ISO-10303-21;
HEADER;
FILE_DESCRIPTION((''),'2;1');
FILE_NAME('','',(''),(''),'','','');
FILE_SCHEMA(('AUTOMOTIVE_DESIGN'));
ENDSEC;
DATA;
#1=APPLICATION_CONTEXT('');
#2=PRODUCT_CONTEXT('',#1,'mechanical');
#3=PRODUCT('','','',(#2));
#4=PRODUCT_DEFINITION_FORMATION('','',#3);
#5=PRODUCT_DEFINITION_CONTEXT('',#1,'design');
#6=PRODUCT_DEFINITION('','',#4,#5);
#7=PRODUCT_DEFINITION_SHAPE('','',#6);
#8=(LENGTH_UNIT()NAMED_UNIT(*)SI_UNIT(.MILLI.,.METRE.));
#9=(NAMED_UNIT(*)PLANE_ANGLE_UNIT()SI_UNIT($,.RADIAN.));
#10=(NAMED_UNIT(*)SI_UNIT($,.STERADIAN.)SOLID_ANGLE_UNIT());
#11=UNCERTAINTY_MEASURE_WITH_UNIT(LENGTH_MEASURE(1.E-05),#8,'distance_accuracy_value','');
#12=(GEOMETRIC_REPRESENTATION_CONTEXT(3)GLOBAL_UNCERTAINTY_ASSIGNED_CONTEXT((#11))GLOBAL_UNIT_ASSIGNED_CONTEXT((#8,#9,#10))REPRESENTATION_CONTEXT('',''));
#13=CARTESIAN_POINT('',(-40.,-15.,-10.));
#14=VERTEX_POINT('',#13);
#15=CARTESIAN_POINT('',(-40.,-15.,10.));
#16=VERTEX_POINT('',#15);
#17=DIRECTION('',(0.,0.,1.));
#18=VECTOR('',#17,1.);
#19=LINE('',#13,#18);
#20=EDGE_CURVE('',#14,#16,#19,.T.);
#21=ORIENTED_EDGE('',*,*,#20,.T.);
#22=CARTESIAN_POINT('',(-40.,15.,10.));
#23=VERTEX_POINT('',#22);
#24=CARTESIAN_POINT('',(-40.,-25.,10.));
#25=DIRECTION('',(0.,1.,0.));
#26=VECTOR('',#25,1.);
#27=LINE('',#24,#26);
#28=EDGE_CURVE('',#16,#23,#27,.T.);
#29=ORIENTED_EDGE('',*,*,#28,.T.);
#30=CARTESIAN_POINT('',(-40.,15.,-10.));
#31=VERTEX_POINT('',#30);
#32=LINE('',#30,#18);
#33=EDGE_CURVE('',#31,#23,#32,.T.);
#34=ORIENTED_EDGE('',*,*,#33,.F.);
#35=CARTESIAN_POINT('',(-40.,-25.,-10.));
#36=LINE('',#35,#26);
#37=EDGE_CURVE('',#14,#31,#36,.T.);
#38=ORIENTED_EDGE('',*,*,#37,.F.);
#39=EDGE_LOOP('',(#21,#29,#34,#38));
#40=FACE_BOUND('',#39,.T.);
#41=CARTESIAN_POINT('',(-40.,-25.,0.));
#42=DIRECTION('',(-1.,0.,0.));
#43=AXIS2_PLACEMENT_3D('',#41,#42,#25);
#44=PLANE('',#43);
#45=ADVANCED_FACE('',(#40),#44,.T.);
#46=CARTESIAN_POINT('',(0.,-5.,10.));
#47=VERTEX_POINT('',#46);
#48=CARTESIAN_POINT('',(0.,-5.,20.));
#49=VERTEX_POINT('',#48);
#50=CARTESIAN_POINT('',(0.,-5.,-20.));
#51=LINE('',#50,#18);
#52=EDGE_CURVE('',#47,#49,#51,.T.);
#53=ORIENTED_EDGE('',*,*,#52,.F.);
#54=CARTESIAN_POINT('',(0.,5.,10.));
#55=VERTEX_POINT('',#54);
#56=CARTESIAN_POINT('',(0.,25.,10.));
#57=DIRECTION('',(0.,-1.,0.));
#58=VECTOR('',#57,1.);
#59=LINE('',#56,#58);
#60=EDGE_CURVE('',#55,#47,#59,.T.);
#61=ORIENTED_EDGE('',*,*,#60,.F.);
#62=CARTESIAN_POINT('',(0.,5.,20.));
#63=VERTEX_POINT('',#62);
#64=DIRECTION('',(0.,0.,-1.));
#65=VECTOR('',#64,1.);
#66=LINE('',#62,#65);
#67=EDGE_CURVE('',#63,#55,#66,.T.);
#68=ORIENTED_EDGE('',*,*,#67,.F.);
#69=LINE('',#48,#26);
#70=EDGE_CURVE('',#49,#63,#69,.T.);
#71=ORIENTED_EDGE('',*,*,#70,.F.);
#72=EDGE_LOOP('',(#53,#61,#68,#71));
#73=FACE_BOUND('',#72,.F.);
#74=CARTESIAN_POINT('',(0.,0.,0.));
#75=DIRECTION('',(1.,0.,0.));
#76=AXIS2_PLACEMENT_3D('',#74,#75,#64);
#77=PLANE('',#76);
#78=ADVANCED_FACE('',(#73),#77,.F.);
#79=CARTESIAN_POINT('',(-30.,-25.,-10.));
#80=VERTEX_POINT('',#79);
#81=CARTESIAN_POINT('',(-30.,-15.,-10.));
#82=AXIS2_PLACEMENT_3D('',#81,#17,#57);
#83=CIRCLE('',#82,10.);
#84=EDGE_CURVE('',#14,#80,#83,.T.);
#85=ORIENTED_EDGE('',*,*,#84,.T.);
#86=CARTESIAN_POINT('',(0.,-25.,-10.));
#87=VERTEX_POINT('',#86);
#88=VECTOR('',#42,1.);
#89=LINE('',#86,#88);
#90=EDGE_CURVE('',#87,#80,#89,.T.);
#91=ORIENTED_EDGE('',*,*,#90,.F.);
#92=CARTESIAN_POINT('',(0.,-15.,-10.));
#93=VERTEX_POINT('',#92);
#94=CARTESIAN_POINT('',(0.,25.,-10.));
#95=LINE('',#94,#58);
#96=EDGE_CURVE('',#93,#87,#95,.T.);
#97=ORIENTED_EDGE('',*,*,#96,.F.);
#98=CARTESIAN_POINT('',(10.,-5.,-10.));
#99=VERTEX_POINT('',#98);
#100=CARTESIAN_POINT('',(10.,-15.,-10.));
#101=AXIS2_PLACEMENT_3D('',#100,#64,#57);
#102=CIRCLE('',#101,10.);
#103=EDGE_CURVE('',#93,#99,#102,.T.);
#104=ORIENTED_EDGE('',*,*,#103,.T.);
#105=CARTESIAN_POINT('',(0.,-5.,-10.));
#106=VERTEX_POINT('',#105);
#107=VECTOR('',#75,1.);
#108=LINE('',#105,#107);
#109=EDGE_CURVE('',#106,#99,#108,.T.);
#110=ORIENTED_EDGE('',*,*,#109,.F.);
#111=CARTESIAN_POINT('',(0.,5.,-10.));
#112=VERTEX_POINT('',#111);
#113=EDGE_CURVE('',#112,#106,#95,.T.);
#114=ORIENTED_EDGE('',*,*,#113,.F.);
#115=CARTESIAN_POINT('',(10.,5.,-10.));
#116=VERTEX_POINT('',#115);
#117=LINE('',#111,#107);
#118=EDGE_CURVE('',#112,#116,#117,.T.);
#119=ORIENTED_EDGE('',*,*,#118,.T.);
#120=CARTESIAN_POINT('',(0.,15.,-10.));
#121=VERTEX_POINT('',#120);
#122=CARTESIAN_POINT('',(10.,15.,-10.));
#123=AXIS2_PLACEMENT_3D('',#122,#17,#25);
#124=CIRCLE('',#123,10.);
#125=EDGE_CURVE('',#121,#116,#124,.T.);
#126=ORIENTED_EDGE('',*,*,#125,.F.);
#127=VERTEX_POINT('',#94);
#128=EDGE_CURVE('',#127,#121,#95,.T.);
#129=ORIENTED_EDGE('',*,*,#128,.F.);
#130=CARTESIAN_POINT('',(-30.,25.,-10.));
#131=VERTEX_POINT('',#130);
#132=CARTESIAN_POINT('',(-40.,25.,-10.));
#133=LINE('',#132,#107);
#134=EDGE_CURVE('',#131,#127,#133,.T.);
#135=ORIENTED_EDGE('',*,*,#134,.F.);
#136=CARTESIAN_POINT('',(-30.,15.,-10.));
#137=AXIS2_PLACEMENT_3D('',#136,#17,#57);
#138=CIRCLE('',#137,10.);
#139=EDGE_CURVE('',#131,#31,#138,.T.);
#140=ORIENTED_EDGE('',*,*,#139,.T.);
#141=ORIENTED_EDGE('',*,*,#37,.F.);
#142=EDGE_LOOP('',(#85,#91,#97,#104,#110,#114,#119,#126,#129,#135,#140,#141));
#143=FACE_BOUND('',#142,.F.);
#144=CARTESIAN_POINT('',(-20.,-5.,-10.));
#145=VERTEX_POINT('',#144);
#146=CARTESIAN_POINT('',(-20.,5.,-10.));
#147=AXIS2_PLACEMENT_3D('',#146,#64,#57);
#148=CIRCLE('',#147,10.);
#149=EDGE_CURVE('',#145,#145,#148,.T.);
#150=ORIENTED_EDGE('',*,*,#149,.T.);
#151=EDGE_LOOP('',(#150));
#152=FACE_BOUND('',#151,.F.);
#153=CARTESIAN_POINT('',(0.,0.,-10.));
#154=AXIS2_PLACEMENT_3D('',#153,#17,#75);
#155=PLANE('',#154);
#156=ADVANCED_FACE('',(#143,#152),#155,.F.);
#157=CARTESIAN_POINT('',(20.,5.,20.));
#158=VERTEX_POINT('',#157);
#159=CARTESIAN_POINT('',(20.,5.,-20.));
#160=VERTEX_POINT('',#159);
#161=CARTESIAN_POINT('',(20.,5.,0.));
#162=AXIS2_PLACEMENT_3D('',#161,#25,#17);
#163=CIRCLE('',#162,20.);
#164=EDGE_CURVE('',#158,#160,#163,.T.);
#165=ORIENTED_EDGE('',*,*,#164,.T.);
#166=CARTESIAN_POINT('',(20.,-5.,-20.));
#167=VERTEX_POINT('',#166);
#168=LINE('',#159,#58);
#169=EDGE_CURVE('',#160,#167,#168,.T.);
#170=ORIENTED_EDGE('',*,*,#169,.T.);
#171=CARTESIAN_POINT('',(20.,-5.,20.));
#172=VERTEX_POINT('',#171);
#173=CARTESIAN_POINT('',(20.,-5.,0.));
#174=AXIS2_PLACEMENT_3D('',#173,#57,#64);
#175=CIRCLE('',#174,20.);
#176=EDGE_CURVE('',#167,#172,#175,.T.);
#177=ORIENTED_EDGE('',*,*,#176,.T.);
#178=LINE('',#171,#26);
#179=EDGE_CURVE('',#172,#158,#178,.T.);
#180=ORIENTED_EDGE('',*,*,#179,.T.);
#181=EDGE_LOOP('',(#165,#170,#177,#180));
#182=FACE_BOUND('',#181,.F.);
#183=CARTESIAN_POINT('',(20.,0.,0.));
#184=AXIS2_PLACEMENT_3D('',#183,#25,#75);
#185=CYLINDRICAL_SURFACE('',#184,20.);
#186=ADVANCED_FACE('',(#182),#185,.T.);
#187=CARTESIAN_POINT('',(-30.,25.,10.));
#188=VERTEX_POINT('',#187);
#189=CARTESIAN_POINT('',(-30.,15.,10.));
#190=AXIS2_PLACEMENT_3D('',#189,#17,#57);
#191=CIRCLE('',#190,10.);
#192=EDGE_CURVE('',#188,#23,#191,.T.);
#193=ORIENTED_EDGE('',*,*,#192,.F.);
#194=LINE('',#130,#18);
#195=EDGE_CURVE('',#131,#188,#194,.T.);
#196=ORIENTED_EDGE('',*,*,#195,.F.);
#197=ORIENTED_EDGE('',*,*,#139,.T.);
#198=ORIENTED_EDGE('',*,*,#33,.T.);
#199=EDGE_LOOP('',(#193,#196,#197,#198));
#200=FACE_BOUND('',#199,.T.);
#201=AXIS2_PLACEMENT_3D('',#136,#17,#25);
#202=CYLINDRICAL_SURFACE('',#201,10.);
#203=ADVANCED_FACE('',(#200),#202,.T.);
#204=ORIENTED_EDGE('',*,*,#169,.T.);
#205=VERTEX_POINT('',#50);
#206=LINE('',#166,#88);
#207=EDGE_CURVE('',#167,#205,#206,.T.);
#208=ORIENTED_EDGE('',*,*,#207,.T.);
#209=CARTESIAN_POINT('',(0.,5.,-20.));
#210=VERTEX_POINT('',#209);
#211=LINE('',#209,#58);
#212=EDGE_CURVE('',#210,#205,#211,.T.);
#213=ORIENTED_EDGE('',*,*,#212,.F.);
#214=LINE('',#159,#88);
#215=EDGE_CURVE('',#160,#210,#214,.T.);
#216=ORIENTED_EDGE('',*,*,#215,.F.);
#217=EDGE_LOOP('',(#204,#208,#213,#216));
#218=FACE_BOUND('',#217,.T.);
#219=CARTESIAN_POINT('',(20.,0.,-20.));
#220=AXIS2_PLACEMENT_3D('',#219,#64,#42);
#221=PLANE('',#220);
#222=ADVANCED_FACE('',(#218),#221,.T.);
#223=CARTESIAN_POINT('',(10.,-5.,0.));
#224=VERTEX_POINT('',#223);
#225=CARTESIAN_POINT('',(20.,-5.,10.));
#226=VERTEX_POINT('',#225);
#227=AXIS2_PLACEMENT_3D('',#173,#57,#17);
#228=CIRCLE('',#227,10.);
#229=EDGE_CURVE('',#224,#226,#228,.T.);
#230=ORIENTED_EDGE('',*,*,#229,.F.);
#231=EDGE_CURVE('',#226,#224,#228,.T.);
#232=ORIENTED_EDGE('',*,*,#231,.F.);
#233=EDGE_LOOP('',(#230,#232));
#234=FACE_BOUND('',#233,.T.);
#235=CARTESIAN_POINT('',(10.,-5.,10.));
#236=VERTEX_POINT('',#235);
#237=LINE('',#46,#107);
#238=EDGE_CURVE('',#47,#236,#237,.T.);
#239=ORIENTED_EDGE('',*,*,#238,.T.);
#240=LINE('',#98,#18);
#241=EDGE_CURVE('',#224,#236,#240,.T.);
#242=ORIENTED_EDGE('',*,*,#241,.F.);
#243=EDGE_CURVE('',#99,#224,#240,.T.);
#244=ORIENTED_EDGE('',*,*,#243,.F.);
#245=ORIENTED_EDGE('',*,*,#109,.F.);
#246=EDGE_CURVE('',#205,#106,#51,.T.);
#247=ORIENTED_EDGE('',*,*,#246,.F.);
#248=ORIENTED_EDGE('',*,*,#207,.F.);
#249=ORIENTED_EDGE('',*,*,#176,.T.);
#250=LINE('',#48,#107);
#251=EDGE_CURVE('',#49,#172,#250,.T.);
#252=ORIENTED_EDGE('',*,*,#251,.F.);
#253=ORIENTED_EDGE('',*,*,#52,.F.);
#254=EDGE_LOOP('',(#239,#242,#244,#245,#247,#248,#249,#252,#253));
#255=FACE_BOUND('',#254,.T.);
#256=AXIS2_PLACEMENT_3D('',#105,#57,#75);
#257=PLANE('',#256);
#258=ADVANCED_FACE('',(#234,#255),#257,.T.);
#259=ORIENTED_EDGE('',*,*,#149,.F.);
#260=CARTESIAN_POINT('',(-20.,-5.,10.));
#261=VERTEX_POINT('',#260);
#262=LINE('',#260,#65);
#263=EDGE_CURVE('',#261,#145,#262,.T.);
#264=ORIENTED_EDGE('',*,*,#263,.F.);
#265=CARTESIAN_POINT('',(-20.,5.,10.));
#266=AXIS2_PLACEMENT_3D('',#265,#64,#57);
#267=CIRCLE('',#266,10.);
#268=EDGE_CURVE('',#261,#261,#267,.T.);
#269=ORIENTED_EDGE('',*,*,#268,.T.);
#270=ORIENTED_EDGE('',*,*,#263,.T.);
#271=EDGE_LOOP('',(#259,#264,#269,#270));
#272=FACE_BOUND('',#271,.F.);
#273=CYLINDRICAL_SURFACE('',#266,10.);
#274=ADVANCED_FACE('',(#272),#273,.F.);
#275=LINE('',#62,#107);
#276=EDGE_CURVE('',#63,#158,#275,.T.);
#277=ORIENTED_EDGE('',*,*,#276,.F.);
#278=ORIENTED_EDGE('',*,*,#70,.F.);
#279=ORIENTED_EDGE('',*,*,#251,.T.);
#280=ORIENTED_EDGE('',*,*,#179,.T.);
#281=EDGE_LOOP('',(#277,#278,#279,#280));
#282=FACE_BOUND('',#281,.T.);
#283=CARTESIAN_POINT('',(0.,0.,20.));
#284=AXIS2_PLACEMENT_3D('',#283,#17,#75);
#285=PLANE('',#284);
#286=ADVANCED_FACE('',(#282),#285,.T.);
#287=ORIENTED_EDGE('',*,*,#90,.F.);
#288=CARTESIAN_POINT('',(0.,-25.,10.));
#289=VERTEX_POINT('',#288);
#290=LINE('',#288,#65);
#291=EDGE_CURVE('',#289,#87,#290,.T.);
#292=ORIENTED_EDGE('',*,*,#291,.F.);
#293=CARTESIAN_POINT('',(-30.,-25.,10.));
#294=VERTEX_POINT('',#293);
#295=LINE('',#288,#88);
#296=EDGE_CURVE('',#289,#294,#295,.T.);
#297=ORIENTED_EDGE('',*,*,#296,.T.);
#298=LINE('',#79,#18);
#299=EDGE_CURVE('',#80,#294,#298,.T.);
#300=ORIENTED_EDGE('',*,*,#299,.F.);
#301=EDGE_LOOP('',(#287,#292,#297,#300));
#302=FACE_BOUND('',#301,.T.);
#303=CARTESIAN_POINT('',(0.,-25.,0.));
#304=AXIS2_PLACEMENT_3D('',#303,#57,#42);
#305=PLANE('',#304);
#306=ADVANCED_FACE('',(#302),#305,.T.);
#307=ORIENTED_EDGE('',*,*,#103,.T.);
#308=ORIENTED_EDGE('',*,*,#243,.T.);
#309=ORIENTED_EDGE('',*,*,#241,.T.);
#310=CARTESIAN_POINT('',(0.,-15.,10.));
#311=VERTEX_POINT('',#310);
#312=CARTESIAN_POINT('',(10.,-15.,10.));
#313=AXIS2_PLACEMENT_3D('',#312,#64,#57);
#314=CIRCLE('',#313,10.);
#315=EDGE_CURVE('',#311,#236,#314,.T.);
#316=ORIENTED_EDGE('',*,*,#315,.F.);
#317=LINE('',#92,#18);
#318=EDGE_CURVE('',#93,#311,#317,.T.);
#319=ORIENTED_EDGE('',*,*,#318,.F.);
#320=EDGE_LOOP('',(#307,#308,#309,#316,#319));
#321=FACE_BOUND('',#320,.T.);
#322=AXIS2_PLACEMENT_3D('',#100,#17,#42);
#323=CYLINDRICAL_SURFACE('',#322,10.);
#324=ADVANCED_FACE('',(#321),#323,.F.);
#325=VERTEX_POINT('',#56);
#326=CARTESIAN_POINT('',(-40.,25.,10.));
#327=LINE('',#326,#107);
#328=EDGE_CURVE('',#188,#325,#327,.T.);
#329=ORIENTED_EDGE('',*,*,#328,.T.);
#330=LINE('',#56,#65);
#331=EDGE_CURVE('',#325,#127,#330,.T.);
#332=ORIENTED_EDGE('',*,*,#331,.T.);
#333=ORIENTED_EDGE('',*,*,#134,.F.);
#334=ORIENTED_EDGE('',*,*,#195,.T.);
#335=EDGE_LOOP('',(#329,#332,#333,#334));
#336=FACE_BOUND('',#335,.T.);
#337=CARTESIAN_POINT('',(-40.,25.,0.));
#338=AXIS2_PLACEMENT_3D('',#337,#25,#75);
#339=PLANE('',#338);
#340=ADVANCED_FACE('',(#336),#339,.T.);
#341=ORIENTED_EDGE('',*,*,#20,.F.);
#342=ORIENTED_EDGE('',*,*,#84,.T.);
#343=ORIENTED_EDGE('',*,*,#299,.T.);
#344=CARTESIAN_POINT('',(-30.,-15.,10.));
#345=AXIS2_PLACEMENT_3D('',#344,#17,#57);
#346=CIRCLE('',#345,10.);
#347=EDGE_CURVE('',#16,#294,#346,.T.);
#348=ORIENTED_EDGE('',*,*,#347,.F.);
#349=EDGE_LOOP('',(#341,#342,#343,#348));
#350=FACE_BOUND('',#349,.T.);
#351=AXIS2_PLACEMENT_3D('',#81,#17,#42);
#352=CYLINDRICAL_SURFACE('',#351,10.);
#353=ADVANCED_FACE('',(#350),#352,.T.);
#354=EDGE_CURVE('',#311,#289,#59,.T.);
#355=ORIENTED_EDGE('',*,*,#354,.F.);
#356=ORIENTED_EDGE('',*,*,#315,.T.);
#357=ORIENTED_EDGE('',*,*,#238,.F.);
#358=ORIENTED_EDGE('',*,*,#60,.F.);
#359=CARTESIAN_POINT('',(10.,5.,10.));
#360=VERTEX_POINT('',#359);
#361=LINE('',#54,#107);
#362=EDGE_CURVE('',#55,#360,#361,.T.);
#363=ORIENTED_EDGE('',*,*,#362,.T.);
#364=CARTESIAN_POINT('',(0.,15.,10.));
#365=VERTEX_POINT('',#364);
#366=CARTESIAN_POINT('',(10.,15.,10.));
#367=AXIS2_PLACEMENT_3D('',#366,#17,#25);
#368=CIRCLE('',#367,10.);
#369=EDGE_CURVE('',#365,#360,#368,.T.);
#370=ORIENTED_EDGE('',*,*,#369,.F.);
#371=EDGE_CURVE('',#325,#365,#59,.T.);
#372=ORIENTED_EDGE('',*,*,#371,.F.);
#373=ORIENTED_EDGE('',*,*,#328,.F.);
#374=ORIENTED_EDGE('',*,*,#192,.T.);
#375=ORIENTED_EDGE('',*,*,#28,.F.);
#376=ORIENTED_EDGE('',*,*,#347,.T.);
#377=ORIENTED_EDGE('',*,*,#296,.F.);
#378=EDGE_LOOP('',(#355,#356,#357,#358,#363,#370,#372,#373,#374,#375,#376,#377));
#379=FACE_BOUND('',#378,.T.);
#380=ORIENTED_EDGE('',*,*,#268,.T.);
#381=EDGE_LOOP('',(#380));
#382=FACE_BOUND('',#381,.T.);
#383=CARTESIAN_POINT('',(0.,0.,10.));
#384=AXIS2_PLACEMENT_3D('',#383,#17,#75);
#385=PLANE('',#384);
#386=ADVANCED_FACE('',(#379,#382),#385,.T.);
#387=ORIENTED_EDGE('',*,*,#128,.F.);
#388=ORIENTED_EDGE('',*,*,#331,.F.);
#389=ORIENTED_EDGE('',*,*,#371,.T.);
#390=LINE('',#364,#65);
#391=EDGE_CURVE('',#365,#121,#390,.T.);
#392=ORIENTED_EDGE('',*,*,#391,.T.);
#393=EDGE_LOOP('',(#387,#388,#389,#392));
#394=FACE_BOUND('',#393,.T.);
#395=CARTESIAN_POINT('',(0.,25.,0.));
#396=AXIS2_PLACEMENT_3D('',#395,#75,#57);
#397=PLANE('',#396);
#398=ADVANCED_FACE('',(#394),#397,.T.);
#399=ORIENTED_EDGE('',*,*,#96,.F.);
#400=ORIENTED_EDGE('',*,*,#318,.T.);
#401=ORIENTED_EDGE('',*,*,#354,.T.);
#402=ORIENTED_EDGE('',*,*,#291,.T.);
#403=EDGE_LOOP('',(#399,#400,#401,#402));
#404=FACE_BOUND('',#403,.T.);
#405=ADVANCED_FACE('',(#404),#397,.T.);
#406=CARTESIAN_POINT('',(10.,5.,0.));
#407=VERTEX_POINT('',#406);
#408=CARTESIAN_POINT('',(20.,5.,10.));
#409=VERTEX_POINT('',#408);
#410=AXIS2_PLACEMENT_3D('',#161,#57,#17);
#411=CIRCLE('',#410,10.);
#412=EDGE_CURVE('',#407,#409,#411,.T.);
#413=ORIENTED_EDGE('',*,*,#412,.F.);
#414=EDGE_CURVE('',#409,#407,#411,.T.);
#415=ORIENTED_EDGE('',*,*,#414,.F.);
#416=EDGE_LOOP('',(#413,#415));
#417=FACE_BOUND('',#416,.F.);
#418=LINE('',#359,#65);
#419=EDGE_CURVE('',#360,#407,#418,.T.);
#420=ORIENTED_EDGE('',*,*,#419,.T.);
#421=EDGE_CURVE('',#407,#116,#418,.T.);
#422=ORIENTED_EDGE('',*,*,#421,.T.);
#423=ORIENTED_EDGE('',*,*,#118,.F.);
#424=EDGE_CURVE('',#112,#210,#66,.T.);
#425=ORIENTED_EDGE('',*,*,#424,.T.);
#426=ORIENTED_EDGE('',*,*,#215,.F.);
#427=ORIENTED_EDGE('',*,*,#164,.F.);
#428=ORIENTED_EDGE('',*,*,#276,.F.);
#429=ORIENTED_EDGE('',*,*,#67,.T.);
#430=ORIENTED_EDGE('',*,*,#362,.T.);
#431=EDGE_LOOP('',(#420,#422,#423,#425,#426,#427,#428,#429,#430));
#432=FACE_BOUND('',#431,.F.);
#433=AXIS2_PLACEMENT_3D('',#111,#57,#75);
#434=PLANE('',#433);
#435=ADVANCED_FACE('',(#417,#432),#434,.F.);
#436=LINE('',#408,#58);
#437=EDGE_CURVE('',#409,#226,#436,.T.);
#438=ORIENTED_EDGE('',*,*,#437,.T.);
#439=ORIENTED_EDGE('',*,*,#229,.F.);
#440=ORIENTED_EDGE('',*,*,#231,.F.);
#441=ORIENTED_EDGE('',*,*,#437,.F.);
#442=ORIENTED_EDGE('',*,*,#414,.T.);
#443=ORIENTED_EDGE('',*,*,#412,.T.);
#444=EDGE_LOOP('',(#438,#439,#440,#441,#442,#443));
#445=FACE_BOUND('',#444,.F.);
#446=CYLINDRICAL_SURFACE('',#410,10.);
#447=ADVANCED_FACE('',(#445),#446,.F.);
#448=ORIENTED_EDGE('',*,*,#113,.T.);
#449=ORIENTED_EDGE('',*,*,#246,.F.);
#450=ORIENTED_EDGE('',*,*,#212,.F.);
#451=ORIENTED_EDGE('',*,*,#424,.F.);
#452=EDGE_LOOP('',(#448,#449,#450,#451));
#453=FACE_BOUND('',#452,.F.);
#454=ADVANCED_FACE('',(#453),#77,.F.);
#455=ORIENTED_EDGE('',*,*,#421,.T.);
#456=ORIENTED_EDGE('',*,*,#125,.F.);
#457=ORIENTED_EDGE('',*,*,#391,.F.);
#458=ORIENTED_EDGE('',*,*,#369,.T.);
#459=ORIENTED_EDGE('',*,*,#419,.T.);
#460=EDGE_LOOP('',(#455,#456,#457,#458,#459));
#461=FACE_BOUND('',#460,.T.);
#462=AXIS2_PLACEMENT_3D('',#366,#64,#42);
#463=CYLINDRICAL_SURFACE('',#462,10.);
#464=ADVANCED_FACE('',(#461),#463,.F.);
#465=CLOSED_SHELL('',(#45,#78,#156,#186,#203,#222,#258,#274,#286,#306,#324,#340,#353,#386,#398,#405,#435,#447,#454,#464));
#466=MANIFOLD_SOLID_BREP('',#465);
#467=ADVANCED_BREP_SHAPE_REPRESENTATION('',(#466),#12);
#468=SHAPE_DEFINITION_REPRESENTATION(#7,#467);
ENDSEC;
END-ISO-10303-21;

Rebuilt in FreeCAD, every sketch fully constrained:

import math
import FreeCAD as App
import Part
import Sketcher

V = App.Vector


def edges_at(feature, points):
    """Names of the edges that pass closest to the given points."""
    edges = feature.Shape.Edges
    near = lambda p: min(range(len(edges)), key=lambda i: edges[i].distToShape(Part.Vertex(*p))[0])
    return sorted({f"Edge{near(p) + 1}" for p in points})


def add_polygon(sketch, points):
    """Adds a closed chain of lines whose ends are joined by coincident constraints."""
    first, n = sketch.GeometryCount, len(points)
    for a, b in zip(points, points[1:] + points[:1]):
        sketch.addGeometry(Part.LineSegment(App.Vector(*a, 0), App.Vector(*b, 0)), False)
    for i in range(n):
        sketch.addConstraint(Sketcher.Constraint("Coincident", first + i, 2, first + (i + 1) % n, 1))

doc = App.newDocument("Part")
body = doc.addObject("PartDesign::Body", "Body")

# Sketch on XY plane
sketch1 = body.newObject("Sketcher::SketchObject", "Sketch")
sketch1.AttachmentSupport = (doc.getObject("XY_Plane"), [""])
sketch1.MapMode = "FlatFace"
add_polygon(sketch1, [(0, 25), (-40, 25), (-40, -25), (0, -25)])  # lines 0-3
sketch1.addConstraint([
    Sketcher.Constraint("Horizontal", 0),
    Sketcher.Constraint("Vertical", 1),
    Sketcher.Constraint("Horizontal", 2),
    Sketcher.Constraint("Vertical", 3),
    Sketcher.Constraint("Symmetric", 2, 2, 3, 2, -1, 1),
    Sketcher.Constraint("DistanceX", 0, 2, 0, 1, 40.0),
    Sketcher.Constraint("DistanceY", 1, 2, 1, 1, 50.0),
])
pad1 = body.newObject("PartDesign::Pad", "Pad")
pad1.Profile = sketch1
pad1.Length = 20
pad1.Midplane = True
doc.recompute()

fillet = body.newObject("PartDesign::Fillet", "Fillet")
fillet.Base = (pad1, edges_at(pad1, [(-40, 25, 0), (-40, -25, 0)]))
fillet.Radius = 10

# Sketch on XY plane
sketch2 = body.newObject("Sketcher::SketchObject", "Sketch001")
sketch2.AttachmentSupport = (doc.getObject("XY_Plane"), [""])
sketch2.MapMode = "FlatFace"
sketch2.AttachmentOffset = App.Placement(V(0, 0, 10), App.Rotation())
sketch2.addGeometry(Part.Circle(V(-20, 5, 0), V(0, 0, 1), 10), False)
sketch2.addConstraint([
    Sketcher.Constraint("Diameter", 0, 20.0),
    Sketcher.Constraint("DistanceX", 0, 3, -1, 1, 20.0),
    Sketcher.Constraint("DistanceY", -1, 1, 0, 3, 5.0),
])
doc.recompute()
hole = body.newObject("PartDesign::Hole", "Hole")
hole.Profile = sketch2
hole.ThreadType = "None"
hole.Diameter = 20
hole.DepthType = "ThroughAll"

# Sketch on XZ plane
sketch3 = body.newObject("Sketcher::SketchObject", "Sketch002")
sketch3.AttachmentSupport = (doc.getObject("XZ_Plane"), [""])
sketch3.MapMode = "FlatFace"
sketch3.addGeometry([
    Part.LineSegment(V(0, -20, 0), V(20, -20, 0)),
    Part.ArcOfCircle(Part.Circle(V(20, 0, 0), V(0, 0, 1), 20), math.radians(-90), math.radians(90)),
    Part.LineSegment(V(20, 20, 0), V(0, 20, 0)),
    Part.LineSegment(V(0, 20, 0), V(0, -20, 0)),
], False)
sketch3.addConstraint([
    Sketcher.Constraint("Tangent", 0, 2, 1, 1),
    Sketcher.Constraint("Tangent", 1, 2, 2, 1),
    Sketcher.Constraint("Coincident", 2, 2, 3, 1),
    Sketcher.Constraint("Coincident", 3, 2, 0, 1),
    Sketcher.Constraint("Horizontal", 0),
    Sketcher.Constraint("Horizontal", 2),
    Sketcher.Constraint("Vertical", 3),
    Sketcher.Constraint("Symmetric", 2, 2, 3, 2, -1, 1),
    Sketcher.Constraint("Radius", 1, 20.0),
    Sketcher.Constraint("DistanceX", 0, 1, 0, 2, 20.0),
])
pad2 = body.newObject("PartDesign::Pad", "Pad001")
pad2.Profile = sketch3
pad2.Length = 10
pad2.Midplane = True
doc.recompute()

fillet2 = body.newObject("PartDesign::Fillet", "Fillet001")
fillet2.Base = (pad2, edges_at(pad2, [(0, 5, 0), (0, -5, 0)]))
fillet2.Radius = 10

# Sketch on XZ plane
sketch4 = body.newObject("Sketcher::SketchObject", "Sketch003")
sketch4.AttachmentSupport = (doc.getObject("XZ_Plane"), [""])
sketch4.MapMode = "FlatFace"
sketch4.AttachmentOffset = App.Placement(V(0, 0, -5), App.Rotation())
sketch4.addGeometry(Part.Circle(V(20, 0, 0), V(0, 0, 1), 10), False)
sketch4.addConstraint([
    Sketcher.Constraint("PointOnObject", 0, 3, -1),
    Sketcher.Constraint("Diameter", 0, 20.0),
    Sketcher.Constraint("DistanceX", -1, 1, 0, 3, 20.0),
])
doc.recompute()
hole2 = body.newObject("PartDesign::Hole", "Hole001")
hole2.Profile = sketch4
hole2.ThreadType = "None"
hole2.Diameter = 20
hole2.DepthType = "ThroughAll"
hole2.Reversed = True

doc.recompute()
